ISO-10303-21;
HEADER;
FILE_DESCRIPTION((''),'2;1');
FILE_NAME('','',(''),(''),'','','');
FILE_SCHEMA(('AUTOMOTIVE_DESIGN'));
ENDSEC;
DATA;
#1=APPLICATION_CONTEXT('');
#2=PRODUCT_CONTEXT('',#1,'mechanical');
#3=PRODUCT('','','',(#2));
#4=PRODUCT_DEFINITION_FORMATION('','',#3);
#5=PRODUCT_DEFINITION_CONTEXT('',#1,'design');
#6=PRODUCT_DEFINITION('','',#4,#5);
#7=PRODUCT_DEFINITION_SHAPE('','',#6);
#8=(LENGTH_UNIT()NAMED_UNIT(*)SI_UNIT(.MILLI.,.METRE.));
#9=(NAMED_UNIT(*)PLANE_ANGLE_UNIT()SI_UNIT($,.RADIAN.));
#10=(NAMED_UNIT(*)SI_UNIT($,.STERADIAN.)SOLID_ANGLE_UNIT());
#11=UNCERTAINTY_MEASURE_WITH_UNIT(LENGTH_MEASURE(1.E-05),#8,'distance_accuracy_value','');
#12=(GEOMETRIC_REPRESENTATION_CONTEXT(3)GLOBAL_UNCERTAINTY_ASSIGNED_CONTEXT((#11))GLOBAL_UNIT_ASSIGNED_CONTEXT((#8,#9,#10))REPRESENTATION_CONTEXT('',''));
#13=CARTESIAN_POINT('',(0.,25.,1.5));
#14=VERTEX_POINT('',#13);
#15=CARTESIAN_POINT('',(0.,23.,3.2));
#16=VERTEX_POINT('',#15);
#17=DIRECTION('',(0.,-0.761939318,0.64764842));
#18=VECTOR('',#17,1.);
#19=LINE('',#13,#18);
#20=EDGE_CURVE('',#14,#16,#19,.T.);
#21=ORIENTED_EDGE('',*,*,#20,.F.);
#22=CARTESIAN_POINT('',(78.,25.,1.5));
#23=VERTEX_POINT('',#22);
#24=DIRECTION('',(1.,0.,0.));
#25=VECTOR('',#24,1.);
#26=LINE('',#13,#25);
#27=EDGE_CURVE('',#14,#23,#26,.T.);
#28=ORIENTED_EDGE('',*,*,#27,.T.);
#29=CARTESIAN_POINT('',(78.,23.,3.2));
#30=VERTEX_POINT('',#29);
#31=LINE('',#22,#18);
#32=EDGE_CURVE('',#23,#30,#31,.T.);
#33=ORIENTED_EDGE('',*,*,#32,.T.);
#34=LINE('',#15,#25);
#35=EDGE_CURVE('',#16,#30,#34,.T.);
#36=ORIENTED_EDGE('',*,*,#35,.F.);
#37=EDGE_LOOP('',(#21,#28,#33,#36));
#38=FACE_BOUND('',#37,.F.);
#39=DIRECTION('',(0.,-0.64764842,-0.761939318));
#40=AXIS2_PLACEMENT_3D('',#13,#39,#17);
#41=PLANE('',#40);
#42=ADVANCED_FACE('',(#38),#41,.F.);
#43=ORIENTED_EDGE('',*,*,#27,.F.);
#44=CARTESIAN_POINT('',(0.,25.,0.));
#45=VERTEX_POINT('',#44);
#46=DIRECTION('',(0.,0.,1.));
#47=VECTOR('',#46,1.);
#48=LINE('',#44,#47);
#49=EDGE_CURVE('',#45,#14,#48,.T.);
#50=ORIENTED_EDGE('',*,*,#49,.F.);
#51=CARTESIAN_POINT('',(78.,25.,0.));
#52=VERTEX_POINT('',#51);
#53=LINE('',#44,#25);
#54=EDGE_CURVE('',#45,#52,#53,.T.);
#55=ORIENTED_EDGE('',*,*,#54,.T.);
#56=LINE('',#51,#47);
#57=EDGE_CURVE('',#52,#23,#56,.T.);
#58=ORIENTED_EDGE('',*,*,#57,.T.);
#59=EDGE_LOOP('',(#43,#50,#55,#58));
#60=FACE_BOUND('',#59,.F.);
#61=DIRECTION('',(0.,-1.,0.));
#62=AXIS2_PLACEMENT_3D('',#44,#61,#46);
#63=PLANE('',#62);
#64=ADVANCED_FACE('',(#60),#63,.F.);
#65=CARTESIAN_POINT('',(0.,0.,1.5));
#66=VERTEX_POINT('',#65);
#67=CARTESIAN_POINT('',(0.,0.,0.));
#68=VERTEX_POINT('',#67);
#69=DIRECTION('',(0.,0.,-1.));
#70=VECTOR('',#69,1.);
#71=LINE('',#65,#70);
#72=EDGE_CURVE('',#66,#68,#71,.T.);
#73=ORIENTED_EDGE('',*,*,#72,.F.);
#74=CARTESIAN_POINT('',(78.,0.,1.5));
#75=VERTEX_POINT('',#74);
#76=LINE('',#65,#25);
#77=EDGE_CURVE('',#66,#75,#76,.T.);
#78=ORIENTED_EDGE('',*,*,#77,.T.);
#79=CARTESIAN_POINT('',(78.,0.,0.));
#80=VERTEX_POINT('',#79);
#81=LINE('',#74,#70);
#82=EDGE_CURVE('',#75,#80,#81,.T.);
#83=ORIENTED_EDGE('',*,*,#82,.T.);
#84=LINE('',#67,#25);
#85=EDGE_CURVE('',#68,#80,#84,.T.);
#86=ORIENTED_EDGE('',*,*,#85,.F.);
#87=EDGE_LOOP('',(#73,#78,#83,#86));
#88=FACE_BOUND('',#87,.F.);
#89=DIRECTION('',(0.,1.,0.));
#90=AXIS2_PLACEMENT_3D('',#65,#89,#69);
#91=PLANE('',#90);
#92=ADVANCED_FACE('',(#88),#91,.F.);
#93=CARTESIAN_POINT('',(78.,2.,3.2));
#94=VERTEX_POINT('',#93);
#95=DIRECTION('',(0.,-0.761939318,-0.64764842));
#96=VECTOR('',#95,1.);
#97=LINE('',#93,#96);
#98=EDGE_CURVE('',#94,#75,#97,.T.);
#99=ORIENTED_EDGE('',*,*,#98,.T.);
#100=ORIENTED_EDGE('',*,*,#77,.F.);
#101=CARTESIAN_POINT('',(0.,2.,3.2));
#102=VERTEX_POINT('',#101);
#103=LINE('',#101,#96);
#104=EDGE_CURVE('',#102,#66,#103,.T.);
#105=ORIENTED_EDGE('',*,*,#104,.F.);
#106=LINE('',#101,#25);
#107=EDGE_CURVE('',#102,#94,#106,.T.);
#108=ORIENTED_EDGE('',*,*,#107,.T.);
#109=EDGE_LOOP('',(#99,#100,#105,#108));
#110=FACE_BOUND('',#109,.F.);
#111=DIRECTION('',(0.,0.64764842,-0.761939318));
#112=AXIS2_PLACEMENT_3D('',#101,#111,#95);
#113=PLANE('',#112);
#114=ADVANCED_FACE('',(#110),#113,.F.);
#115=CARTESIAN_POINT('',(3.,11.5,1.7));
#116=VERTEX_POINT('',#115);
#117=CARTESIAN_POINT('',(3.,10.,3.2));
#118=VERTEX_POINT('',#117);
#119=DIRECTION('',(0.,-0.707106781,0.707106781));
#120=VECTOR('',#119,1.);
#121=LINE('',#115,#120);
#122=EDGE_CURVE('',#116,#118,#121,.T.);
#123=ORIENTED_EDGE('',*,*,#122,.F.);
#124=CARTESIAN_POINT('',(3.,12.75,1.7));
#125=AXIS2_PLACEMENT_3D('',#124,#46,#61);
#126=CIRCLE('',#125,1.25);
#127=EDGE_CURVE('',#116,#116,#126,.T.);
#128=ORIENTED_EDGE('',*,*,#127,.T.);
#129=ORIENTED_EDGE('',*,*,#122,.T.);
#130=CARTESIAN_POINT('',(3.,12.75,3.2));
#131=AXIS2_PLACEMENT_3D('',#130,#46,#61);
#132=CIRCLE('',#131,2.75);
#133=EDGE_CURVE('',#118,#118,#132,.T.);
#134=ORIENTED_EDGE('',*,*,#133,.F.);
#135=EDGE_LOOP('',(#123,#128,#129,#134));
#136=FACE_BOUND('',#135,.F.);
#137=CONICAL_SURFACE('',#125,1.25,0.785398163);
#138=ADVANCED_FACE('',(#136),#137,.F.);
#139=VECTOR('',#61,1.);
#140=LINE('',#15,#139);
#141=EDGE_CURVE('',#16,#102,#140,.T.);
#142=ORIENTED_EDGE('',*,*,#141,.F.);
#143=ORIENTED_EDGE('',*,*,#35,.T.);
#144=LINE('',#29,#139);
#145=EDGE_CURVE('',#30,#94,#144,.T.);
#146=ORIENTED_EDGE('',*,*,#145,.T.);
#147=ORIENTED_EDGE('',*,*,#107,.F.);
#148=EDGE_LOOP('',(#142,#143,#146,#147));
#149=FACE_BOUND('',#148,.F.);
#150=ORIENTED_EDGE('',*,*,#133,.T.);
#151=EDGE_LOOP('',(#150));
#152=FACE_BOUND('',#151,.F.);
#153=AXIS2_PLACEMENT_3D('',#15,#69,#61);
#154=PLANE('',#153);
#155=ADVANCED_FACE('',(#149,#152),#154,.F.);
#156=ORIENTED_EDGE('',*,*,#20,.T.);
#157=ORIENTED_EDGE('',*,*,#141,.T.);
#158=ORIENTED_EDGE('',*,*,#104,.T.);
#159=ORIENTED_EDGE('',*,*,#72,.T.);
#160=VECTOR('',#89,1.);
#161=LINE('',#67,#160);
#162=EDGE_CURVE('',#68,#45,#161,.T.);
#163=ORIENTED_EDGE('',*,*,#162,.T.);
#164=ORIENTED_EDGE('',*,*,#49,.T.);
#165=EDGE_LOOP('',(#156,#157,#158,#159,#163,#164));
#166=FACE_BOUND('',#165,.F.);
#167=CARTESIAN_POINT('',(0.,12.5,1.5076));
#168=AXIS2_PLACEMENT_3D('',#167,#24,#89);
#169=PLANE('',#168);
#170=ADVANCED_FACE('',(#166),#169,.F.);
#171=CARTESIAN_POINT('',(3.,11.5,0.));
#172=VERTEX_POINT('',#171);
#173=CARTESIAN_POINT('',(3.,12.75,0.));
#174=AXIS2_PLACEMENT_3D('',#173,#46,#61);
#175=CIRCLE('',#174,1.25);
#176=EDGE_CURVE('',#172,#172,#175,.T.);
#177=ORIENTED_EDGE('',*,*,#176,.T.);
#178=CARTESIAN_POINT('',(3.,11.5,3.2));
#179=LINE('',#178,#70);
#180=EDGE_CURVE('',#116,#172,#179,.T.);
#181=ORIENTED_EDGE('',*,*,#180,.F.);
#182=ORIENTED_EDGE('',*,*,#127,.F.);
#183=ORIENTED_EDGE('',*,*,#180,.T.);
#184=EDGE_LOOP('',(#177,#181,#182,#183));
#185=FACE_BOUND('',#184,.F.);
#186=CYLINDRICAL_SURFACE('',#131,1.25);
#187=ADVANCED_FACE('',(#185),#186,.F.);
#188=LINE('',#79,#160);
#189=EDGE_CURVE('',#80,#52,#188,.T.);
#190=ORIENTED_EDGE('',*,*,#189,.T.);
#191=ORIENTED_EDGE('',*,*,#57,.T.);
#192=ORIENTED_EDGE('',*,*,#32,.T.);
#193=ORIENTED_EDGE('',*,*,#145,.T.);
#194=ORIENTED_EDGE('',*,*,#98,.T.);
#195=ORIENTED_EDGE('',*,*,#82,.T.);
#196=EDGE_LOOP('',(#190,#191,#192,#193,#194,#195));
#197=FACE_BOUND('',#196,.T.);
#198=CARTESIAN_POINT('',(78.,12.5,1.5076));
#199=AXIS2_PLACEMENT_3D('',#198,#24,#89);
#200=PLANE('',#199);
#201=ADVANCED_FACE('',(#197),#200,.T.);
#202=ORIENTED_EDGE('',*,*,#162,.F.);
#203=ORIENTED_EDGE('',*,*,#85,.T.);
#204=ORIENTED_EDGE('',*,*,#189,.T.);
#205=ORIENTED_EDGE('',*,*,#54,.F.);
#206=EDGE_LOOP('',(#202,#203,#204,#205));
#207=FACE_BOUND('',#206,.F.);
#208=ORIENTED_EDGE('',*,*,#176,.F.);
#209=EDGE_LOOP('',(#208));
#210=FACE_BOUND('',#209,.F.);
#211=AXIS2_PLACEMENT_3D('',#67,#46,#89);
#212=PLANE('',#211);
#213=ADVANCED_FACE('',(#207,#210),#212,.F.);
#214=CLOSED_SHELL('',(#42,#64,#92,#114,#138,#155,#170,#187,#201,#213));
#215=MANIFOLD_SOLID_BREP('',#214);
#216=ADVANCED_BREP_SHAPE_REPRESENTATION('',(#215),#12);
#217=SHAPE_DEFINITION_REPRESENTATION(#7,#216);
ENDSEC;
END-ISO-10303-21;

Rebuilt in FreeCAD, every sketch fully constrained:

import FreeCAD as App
import Part
import Sketcher


def edges_at(feature, points):
    """Names of the edges that pass closest to the given points."""
    edges = feature.Shape.Edges
    near = lambda p: min(range(len(edges)), key=lambda i: edges[i].distToShape(Part.Vertex(*p))[0])
    return sorted({f"Edge{near(p) + 1}" for p in points})

doc = App.newDocument("Part")
params = doc.addObject("Spreadsheet::Sheet", "Params")
for row, (alias, value) in enumerate([
    ("sketch1_width", "25 mm"),
    ("sketch1_width2", "21 mm"),
    ("sketch1_height", "1.5 mm"),
    ("pad1_length", "78 mm"),
    ("sketch2_diameter", "2.5 mm"),
    ("pocket1_length", "5 mm"),
    ("chamfer_size", "1.5 mm"),
], start=1):
    params.set(f"A{row}", alias)
    params.set(f"B{row}", "=" + value)
    params.setAlias(f"B{row}", alias)

body = doc.addObject("PartDesign::Body", "Body")

sketch1 = doc.addObject("Sketcher::SketchObject", "Sketch")
body.addObject(sketch1)
sketch1.AttachmentSupport = (doc.YZ_Plane, [""])
sketch1.MapMode = "FlatFace"
sketch1.addGeometry([
    Part.LineSegment(App.Vector(0, 0, 0), App.Vector(25, 0, 0)),
    Part.LineSegment(App.Vector(25, 0, 0), App.Vector(25, 1.5, 0)),
    Part.LineSegment(App.Vector(25, 1.5, 0), App.Vector(23, 3.2, 0)),
    Part.LineSegment(App.Vector(23, 3.2, 0), App.Vector(2, 3.2, 0)),
    Part.LineSegment(App.Vector(2, 3.2, 0), App.Vector(0, 1.5, 0)),
    Part.LineSegment(App.Vector(0, 1.5, 0), App.Vector(0, 0, 0)),
], False)
sketch1.addConstraint([
    Sketcher.Constraint("Coincident", 0, 2, 1, 1),
    Sketcher.Constraint("Coincident", 1, 2, 2, 1),
    Sketcher.Constraint("Coincident", 2, 2, 3, 1),
    Sketcher.Constraint("Coincident", 3, 2, 4, 1),
    Sketcher.Constraint("Coincident", 4, 2, 5, 1),
    Sketcher.Constraint("Coincident", 5, 2, 0, 1),
    Sketcher.Constraint("Horizontal", 0),
    Sketcher.Constraint("Vertical", 1),
    Sketcher.Constraint("Horizontal", 3),
    Sketcher.Constraint("Vertical", 5),
    Sketcher.Constraint("Coincident", 5, 2, -1, 1),
    Sketcher.Constraint("Horizontal", 1, 2, 4, 2),
    Sketcher.Constraint("Equal", 2, 4),
    Sketcher.Constraint("DistanceX", 0, 1, 0, 2, 25.0),
    Sketcher.Constraint("DistanceX", 3, 2, 3, 1, 21.0),
    Sketcher.Constraint("DistanceY", 1, 1, 1, 2, 1.5),
    Sketcher.Constraint("DistanceY", -1, 1, 2, 2, 3.2),
])
sketch1.setExpression("Constraints[13]", "Params.sketch1_width")
sketch1.setExpression("Constraints[14]", "Params.sketch1_width2")
sketch1.setExpression("Constraints[15]", "Params.sketch1_height")
pad1 = doc.addObject("PartDesign::Pad", "Pad")
body.addObject(pad1)
pad1.Profile = sketch1
pad1.setExpression("Length", "Params.pad1_length")

sketch2 = doc.addObject("Sketcher::SketchObject", "Sketch001")
body.addObject(sketch2)
sketch2.AttachmentSupport = (doc.XY_Plane, [""])
sketch2.MapMode = "FlatFace"
sketch2.AttachmentOffset = App.Placement(App.Vector(0, 0, 3.2), App.Rotation())
sketch2.addGeometry(Part.Circle(App.Vector(3, 12.8, 0), App.Vector(0, 0, 1), 1.2), False)
sketch2.addConstraint([
    Sketcher.Constraint("Diameter", 0, 2.5),
    Sketcher.Constraint("DistanceX", -1, 1, 0, 3, 3.0),
    Sketcher.Constraint("DistanceY", -1, 1, 0, 3, 12.75),
])
sketch2.setExpression("Constraints[0]", "Params.sketch2_diameter")
pocket1 = doc.addObject("PartDesign::Pocket", "Pocket")
body.addObject(pocket1)
pocket1.Profile = sketch2
pocket1.setExpression("Length", "Params.pocket1_length")
doc.recompute()

chamfer = doc.addObject("PartDesign::Chamfer", "Chamfer")
body.addObject(chamfer)
chamfer.Base = (pocket1, edges_at(pocket1, [(3, 14, 3.2)]))
chamfer.setExpression("Size", "Params.chamfer_size")

doc.recompute()
